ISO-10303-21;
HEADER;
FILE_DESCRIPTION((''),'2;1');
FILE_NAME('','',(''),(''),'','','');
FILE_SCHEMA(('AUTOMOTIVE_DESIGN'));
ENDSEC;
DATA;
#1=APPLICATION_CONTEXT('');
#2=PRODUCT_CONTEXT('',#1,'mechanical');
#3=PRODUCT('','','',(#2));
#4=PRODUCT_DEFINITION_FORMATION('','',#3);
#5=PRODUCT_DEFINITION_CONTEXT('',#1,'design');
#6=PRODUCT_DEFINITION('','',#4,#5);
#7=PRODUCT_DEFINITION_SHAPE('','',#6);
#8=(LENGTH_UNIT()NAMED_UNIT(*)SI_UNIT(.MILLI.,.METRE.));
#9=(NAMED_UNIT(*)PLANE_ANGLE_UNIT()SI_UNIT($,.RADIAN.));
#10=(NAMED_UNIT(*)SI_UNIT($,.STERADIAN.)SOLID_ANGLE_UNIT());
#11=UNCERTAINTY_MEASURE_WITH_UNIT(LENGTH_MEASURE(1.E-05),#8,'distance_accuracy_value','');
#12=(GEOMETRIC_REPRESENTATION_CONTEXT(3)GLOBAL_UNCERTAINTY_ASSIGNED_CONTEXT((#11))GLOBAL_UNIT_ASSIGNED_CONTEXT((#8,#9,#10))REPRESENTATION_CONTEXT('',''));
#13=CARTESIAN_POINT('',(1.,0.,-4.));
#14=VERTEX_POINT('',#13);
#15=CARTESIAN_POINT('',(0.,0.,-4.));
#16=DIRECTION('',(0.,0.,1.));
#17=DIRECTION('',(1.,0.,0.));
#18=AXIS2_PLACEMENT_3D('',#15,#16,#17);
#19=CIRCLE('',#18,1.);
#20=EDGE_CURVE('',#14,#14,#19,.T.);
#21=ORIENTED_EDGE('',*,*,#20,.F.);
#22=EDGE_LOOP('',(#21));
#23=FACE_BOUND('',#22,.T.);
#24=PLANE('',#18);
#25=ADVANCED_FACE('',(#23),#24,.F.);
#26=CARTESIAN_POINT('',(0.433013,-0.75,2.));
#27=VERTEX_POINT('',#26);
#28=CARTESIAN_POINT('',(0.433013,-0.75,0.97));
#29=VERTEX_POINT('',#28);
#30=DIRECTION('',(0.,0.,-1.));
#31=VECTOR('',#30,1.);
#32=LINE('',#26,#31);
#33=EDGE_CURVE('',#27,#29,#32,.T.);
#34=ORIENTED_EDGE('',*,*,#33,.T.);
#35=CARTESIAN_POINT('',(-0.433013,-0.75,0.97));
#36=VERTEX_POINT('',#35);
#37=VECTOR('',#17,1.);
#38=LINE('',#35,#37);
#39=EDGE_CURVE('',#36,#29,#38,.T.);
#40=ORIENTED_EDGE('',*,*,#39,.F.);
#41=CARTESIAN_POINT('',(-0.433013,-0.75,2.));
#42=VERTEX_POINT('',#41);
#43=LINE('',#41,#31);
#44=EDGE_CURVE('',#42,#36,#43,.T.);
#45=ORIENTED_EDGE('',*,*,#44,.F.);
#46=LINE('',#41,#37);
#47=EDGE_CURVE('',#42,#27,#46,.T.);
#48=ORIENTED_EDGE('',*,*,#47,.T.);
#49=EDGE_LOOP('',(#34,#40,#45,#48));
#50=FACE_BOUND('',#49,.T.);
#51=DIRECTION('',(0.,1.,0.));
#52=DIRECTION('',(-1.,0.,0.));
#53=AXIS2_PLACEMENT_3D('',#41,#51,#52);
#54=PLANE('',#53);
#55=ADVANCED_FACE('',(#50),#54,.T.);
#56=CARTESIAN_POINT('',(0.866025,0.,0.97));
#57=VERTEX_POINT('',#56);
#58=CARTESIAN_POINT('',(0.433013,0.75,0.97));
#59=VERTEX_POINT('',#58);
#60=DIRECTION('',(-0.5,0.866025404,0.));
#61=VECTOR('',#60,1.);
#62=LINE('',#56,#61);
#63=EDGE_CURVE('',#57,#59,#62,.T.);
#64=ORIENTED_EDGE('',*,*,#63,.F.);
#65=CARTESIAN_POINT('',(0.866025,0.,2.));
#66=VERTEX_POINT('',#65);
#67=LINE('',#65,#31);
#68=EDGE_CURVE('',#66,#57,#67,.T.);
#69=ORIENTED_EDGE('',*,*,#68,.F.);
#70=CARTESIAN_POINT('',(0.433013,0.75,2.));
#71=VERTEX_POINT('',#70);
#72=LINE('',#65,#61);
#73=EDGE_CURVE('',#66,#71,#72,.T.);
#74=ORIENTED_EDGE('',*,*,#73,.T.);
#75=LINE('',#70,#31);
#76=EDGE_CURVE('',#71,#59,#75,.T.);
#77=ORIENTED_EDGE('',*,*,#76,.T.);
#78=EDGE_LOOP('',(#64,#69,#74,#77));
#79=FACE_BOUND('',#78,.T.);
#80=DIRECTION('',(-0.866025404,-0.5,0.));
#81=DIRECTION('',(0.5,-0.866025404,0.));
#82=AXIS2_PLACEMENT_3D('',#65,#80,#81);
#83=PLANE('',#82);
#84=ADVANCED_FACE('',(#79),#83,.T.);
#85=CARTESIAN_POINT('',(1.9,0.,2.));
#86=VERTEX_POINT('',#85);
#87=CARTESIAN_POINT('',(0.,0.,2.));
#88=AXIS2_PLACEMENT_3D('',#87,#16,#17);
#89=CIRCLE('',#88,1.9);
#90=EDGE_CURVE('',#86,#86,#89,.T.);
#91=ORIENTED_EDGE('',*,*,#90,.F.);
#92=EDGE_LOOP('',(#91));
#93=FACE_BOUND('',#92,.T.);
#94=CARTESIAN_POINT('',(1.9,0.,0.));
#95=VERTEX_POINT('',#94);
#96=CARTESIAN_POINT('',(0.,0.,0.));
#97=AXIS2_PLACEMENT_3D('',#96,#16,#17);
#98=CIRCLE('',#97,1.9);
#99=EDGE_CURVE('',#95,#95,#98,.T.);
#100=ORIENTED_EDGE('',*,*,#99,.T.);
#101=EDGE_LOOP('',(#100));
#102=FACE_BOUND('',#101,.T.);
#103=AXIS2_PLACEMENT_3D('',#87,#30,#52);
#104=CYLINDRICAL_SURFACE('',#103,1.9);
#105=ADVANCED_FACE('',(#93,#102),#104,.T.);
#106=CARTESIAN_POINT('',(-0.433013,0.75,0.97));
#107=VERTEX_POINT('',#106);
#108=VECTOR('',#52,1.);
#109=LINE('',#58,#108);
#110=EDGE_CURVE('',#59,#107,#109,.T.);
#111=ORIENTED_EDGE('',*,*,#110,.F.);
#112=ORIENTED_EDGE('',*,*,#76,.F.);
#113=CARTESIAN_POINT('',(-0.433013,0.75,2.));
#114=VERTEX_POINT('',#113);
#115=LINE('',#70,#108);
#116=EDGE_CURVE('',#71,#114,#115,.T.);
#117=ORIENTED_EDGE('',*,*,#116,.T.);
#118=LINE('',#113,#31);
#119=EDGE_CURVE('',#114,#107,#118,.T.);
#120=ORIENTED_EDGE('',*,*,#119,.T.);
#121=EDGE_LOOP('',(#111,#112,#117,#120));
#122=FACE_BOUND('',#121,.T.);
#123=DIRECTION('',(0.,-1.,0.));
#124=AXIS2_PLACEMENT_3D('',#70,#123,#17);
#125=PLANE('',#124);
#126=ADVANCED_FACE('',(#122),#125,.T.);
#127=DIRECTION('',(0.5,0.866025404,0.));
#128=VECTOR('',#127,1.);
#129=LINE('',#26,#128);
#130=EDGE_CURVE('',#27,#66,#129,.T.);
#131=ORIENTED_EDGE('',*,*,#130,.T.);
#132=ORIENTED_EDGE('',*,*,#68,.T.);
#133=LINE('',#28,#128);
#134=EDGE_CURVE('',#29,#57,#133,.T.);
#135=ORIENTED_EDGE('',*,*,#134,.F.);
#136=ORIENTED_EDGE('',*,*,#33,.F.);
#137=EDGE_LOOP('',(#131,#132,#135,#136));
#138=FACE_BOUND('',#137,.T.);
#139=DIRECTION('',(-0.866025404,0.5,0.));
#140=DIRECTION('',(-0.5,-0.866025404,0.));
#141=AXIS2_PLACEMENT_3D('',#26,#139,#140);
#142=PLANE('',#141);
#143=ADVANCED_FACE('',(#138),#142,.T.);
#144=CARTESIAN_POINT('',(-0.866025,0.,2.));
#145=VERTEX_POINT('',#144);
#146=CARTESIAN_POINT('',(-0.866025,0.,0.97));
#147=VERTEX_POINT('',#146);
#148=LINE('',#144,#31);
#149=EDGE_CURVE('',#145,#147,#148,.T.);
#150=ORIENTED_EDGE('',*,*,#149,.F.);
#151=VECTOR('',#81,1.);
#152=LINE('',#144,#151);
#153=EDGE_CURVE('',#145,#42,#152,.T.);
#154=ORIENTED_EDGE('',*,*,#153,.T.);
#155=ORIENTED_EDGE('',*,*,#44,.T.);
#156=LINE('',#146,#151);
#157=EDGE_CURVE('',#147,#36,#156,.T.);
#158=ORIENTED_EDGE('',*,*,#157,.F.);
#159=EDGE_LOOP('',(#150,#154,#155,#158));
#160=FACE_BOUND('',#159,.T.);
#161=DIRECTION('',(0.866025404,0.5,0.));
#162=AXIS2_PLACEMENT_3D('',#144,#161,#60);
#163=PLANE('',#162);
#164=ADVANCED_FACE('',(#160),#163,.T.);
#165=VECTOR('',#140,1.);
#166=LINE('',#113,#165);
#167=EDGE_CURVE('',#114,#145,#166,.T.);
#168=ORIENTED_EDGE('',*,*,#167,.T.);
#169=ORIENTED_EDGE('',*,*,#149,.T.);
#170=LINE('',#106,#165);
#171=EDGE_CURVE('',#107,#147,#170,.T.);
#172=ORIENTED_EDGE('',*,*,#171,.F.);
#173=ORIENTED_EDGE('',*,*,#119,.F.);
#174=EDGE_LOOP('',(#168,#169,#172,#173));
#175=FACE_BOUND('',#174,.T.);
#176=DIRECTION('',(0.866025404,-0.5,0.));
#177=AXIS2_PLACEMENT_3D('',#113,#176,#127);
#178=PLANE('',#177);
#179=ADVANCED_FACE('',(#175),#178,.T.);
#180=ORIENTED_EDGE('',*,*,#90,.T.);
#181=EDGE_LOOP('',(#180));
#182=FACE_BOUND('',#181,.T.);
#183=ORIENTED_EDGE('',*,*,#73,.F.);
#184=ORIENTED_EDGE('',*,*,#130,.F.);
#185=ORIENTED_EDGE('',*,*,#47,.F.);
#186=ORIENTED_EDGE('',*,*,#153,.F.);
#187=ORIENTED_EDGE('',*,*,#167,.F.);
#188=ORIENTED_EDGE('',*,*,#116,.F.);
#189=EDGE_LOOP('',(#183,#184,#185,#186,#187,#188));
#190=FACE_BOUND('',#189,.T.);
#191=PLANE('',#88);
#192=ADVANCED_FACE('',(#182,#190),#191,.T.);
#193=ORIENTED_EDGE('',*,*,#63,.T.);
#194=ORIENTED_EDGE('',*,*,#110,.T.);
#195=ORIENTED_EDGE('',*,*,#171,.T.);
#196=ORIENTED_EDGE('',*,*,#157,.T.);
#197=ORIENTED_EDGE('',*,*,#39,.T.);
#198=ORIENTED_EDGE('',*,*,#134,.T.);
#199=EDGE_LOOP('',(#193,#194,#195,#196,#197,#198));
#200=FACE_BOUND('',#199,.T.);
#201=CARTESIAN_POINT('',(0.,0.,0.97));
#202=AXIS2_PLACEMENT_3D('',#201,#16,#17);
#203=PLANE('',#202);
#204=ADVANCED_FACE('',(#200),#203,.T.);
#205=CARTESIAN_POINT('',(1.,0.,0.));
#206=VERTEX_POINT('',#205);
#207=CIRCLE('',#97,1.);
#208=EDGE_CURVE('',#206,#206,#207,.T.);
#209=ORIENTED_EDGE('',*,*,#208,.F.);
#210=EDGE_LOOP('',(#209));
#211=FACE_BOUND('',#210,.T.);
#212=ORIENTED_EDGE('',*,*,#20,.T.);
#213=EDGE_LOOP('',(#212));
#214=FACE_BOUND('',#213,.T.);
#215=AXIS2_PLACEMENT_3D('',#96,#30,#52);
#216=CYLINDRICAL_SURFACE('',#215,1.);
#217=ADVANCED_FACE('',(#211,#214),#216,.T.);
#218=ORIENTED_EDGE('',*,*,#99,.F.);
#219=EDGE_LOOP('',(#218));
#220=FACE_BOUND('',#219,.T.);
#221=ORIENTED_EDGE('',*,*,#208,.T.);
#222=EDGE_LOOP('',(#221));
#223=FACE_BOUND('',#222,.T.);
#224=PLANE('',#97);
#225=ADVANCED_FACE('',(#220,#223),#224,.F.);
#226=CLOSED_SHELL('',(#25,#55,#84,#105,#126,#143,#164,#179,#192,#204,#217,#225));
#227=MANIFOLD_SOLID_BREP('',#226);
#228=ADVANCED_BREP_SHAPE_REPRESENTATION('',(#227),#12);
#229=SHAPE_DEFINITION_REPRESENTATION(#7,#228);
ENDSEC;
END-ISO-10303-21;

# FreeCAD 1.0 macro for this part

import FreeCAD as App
import Part
import Sketcher

V = App.Vector
Q = App.Units.Quantity


def add_polygon(sketch, points):
    """Adds a closed chain of lines whose ends are joined by coincident constraints."""
    first, n = sketch.GeometryCount, len(points)
    for a, b in zip(points, points[1:] + points[:1]):
        sketch.addGeometry(Part.LineSegment(App.Vector(*a, 0), App.Vector(*b, 0)), False)
    for i in range(n):
        sketch.addConstraint(Sketcher.Constraint("Coincident", first + i, 2, first + (i + 1) % n, 1))

doc = App.newDocument("Part")
body = doc.addObject("PartDesign::Body", "Body")

# Sketch on XY plane
sketch1 = doc.addObject("Sketcher::SketchObject", "Sketch")
body.addObject(sketch1)
sketch1.AttachmentSupport = (doc.XY_Plane, [""])
sketch1.MapMode = "FlatFace"
sketch1.addGeometry(Part.Circle(V(0, 0, 0), V(0, 0, 1), 1.9), False)
sketch1.addConstraint(Sketcher.Constraint("Coincident", 0, 3, -1, 1))
sketch1.addConstraint(Sketcher.Constraint("Diameter", 0, 3.8))
pad1 = doc.addObject("PartDesign::Pad", "Pad")
body.addObject(pad1)
pad1.Profile = sketch1
pad1.Length = 2

# Sketch on XY plane
sketch2 = doc.addObject("Sketcher::SketchObject", "Sketch001")
body.addObject(sketch2)
sketch2.AttachmentSupport = (doc.XY_Plane, [""])
sketch2.MapMode = "FlatFace"
sketch2.AttachmentOffset = App.Placement(V(0, 0, -4), App.Rotation())
sketch2.addGeometry(Part.Circle(V(0, 0, 0), V(0, 0, 1), 1), False)
sketch2.addConstraint(Sketcher.Constraint("Coincident", 0, 3, -1, 1))
sketch2.addConstraint(Sketcher.Constraint("Diameter", 0, 2.0))
pad2 = doc.addObject("PartDesign::Pad", "Pad001")
body.addObject(pad2)
pad2.Profile = sketch2
pad2.Length = 4

# Sketch on XY plane
sketch3 = doc.addObject("Sketcher::SketchObject", "Sketch002")
body.addObject(sketch3)
sketch3.AttachmentSupport = (doc.XY_Plane, [""])
sketch3.MapMode = "FlatFace"
sketch3.AttachmentOffset = App.Placement(V(0, 0, 0.97), App.Rotation())
add_polygon(sketch3, [(0.9, 0), (0.4, 0.8), (-0.4, 0.8), (-0.9, 0), (-0.4, -0.8), (0.4, -0.8)])  # lines 0-5
sketch3.addConstraint(Sketcher.Constraint("Horizontal", 1))
sketch3.addConstraint(Sketcher.Constraint("Horizontal", 4))
sketch3.addConstraint(Sketcher.Constraint("Symmetric", 0, 2, 3, 2, -1, 1))
sketch3.addConstraint(Sketcher.Constraint("Symmetric", 2, 2, 5, 2, -1, 1))
sketch3.addConstraint(Sketcher.Constraint("PointOnObject", 2, 2, -1))
sketch3.addConstraint(Sketcher.Constraint("Parallel", 2, 5))
sketch3.addConstraint(Sketcher.Constraint("Vertical", 1, 2, 3, 2))
sketch3.addConstraint(Sketcher.Constraint("Angle", 0, Q("120 deg")))
sketch3.addConstraint(Sketcher.Constraint("DistanceY", 3, 2, 1, 2, 1.5))
sketch3.addConstraint(Sketcher.Constraint("DistanceX", 1, 2, 1, 1, 0.866025))
pocket1 = doc.addObject("PartDesign::Pocket", "Pocket")
body.addObject(pocket1)
pocket1.Profile = sketch3
pocket1.Length = 1.03
pocket1.Reversed = True

doc.recompute()
